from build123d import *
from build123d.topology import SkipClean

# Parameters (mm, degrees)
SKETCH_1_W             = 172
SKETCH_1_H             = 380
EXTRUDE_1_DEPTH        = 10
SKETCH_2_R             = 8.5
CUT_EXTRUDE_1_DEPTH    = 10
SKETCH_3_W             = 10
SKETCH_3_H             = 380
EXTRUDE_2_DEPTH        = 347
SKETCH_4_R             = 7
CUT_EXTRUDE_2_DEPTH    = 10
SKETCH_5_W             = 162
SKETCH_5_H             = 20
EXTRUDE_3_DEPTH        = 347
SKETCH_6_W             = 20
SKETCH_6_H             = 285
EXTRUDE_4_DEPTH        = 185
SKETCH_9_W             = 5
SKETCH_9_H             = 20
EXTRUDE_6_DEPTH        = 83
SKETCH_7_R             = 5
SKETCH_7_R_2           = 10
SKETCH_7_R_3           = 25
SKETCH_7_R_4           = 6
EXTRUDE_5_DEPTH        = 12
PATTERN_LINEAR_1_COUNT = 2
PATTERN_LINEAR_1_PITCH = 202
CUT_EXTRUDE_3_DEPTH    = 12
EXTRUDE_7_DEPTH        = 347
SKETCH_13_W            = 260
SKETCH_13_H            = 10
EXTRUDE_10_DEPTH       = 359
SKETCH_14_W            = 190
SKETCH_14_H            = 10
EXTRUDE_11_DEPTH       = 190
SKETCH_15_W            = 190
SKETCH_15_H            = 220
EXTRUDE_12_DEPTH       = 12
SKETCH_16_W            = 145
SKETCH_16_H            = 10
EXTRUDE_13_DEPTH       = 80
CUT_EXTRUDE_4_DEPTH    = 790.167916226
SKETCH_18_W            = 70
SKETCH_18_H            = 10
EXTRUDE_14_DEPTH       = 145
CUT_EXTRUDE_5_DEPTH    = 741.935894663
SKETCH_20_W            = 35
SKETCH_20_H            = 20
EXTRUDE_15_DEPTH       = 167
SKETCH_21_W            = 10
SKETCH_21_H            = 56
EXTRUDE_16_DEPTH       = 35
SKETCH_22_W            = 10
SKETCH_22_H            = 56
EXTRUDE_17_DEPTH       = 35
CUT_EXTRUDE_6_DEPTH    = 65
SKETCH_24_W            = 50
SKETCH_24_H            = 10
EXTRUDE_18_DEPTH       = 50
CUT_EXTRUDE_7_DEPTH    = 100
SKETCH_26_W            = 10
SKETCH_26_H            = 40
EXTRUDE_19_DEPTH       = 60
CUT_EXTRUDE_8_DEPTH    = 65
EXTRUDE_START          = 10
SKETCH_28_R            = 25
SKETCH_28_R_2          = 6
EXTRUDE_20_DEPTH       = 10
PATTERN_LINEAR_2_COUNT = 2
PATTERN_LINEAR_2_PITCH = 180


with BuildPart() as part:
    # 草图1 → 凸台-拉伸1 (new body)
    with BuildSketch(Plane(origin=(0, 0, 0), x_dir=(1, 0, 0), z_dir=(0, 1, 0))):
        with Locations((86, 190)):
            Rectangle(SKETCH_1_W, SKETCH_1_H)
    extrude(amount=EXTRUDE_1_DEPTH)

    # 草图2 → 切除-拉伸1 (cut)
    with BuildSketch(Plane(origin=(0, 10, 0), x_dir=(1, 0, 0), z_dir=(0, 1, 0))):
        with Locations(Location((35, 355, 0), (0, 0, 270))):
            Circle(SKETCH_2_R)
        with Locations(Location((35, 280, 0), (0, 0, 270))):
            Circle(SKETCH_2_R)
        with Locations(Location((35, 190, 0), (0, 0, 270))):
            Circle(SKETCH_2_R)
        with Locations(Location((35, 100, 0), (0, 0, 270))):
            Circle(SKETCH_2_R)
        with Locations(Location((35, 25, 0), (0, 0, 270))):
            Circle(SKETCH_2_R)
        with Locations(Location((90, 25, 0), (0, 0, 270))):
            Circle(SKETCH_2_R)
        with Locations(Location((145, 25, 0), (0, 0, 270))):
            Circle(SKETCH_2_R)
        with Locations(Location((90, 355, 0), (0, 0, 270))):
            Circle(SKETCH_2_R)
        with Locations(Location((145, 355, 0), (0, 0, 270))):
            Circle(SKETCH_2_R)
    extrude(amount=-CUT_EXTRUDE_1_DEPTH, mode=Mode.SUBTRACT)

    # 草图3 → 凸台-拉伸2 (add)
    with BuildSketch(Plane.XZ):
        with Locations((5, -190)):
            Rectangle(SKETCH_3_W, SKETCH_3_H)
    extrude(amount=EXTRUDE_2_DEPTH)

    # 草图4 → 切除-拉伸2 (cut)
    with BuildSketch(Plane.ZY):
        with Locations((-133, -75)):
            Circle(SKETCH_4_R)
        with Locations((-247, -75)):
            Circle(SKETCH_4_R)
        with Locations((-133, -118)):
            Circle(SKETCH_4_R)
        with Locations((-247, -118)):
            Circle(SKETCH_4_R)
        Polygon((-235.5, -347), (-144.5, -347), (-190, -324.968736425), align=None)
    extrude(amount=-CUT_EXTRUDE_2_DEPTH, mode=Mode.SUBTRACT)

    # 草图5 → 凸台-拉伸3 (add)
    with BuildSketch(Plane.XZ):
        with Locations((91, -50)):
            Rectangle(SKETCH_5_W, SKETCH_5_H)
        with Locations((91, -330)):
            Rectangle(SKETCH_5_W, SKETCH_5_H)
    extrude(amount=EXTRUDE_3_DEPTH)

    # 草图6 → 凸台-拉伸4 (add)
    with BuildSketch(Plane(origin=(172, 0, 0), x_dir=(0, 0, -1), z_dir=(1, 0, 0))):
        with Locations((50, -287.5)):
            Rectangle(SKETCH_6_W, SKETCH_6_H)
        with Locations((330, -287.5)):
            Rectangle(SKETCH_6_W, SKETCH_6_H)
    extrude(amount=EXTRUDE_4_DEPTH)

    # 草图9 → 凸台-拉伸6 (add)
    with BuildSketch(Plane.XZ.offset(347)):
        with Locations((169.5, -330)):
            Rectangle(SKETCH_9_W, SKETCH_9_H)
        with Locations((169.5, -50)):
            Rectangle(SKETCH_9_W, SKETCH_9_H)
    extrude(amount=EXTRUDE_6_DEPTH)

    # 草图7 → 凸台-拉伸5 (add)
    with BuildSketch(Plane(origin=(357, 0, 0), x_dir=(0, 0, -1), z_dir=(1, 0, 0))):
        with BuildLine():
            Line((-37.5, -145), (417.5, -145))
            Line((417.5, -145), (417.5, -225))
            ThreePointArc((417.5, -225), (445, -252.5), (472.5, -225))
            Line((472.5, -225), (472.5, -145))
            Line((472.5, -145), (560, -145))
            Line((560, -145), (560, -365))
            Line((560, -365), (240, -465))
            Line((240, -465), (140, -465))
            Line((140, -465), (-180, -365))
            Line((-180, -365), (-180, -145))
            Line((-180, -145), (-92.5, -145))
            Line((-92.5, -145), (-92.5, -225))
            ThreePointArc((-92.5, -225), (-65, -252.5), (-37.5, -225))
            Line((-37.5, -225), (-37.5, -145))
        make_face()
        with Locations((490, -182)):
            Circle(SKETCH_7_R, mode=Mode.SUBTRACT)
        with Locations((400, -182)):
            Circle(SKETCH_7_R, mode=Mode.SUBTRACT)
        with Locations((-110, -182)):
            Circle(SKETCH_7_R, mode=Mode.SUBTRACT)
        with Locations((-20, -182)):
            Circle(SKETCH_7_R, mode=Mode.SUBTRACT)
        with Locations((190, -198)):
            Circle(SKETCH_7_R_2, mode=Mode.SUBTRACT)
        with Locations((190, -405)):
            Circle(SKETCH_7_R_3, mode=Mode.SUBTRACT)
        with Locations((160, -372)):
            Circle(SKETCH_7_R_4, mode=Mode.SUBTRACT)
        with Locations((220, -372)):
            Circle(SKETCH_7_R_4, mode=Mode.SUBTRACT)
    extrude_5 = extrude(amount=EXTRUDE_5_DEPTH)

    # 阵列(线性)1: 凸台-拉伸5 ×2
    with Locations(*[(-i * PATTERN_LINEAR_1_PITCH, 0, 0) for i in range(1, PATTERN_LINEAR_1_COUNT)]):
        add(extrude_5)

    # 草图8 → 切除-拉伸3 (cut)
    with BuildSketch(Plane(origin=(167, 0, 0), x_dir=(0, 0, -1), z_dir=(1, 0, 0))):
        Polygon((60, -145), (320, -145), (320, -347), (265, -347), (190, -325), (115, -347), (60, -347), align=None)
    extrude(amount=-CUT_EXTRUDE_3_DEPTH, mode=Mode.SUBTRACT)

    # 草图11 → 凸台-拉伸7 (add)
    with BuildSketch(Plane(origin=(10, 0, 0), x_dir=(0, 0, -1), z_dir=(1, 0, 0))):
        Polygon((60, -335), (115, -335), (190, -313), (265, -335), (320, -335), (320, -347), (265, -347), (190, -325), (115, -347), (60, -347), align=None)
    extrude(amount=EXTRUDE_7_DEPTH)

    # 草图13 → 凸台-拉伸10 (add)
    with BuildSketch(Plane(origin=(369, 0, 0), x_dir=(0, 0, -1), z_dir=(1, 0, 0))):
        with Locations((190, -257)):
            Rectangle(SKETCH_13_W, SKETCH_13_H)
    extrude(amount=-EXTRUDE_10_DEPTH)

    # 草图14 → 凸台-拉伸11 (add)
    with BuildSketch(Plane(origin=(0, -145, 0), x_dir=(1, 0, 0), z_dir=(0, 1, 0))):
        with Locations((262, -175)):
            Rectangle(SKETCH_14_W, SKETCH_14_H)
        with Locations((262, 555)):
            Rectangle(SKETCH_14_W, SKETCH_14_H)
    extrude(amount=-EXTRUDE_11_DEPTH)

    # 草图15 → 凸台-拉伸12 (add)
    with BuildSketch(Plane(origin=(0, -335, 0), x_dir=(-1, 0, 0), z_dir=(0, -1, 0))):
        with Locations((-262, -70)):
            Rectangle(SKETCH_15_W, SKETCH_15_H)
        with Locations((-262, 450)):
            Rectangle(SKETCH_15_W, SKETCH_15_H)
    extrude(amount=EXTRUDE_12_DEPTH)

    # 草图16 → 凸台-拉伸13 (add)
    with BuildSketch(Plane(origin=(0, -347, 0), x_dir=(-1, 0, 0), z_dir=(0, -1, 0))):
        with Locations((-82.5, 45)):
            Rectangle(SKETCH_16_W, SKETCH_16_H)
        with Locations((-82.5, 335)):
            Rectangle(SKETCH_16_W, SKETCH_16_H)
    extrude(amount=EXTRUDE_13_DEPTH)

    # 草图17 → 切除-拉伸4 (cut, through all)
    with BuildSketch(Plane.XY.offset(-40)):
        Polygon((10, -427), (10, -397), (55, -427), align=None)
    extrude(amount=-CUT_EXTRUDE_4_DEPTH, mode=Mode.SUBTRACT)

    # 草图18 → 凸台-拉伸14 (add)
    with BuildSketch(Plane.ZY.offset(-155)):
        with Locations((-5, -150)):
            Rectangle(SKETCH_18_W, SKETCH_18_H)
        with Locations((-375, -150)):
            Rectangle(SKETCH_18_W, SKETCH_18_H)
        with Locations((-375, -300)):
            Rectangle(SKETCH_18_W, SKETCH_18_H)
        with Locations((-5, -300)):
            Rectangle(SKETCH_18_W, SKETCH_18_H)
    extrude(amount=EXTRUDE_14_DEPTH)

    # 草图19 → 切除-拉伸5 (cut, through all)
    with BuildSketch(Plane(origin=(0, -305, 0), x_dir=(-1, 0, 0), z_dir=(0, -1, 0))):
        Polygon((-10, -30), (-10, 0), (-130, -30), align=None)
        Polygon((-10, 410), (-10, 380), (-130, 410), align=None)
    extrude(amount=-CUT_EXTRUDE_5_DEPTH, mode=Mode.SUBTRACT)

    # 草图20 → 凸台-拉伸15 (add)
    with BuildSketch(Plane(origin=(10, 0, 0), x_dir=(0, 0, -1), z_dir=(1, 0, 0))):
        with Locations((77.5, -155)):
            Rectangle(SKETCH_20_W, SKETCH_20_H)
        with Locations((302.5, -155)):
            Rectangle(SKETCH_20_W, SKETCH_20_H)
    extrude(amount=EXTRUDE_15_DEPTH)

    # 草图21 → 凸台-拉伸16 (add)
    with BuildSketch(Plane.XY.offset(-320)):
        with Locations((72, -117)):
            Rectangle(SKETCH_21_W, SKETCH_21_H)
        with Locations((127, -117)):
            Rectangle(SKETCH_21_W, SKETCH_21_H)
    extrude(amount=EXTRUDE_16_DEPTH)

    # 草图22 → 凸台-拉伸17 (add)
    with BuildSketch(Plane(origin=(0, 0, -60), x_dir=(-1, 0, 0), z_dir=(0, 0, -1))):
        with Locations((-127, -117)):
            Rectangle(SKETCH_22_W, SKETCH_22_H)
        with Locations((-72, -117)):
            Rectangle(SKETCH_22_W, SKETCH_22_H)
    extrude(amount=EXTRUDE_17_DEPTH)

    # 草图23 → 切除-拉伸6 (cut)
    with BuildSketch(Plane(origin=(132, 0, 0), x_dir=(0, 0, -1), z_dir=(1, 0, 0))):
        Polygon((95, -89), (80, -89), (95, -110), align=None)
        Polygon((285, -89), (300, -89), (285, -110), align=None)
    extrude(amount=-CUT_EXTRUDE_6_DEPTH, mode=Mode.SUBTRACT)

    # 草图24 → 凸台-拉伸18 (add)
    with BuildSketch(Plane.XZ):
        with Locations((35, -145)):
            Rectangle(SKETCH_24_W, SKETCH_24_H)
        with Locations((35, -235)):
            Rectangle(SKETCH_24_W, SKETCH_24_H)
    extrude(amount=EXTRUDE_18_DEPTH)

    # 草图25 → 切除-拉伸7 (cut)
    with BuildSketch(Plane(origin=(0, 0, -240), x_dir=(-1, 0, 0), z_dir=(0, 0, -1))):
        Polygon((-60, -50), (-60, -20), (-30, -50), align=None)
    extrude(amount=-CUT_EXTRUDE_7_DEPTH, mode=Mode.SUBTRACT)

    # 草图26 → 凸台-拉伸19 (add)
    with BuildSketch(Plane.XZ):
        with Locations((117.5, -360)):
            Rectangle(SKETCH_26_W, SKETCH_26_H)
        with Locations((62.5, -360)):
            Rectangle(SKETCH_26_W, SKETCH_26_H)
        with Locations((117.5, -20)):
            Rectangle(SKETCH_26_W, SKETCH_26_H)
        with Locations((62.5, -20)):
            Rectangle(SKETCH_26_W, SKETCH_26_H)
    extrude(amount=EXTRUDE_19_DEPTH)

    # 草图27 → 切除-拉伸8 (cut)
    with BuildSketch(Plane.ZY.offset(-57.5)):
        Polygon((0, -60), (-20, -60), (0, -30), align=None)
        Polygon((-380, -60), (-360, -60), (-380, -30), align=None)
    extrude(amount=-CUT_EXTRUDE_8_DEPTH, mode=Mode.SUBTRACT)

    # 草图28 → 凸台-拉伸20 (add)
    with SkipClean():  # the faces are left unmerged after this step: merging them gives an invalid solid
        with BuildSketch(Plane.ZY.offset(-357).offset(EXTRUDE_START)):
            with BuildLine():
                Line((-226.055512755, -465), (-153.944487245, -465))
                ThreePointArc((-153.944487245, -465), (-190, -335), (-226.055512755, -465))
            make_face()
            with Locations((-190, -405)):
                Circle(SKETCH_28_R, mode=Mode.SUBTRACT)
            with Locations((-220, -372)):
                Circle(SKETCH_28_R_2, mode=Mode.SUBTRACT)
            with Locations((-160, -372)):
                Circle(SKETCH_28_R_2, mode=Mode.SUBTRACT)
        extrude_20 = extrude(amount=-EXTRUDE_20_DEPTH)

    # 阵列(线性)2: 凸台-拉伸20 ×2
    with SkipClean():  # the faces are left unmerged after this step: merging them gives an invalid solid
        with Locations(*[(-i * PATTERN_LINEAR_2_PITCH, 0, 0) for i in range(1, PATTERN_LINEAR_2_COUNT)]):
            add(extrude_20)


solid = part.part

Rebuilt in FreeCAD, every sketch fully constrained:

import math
import FreeCAD as App
import Part
import Sketcher

V = App.Vector
Q = App.Units.Quantity


def add_polygon(sketch, points):
    """Adds a closed chain of lines whose ends are joined by coincident constraints."""
    first, n = sketch.GeometryCount, len(points)
    for a, b in zip(points, points[1:] + points[:1]):
        sketch.addGeometry(Part.LineSegment(App.Vector(*a, 0), App.Vector(*b, 0)), False)
    for i in range(n):
        sketch.addConstraint(Sketcher.Constraint("Coincident", first + i, 2, first + (i + 1) % n, 1))

doc = App.newDocument("Part")
body = doc.addObject("PartDesign::Body", "Body")

# Sketch on XZ plane
sketch1 = doc.addObject("Sketcher::SketchObject", "Sketch")
body.addObject(sketch1)
sketch1.AttachmentSupport = (doc.XZ_Plane, [""])
sketch1.MapMode = "FlatFace"
add_polygon(sketch1, [(0, -380), (0, 0), (172, 0), (172, -380)])  # lines 0-3
sketch1.addConstraint([
    Sketcher.Constraint("Vertical", 0),
    Sketcher.Constraint("Horizontal", 1),
    Sketcher.Constraint("Vertical", 2),
    Sketcher.Constraint("Horizontal", 3),
    Sketcher.Constraint("Coincident", 0, 2, -1, 1),
    Sketcher.Constraint("DistanceX", 1, 1, 1, 2, Q("172 mm")),
    Sketcher.Constraint("DistanceY", 0, 1, 0, 2, Q("380 mm")),
])
pad1 = doc.addObject("PartDesign::Pad", "Pad")
body.addObject(pad1)
pad1.Profile = sketch1
pad1.Length = 10
pad1.Reversed = True

# Sketch on XZ plane
sketch2 = doc.addObject("Sketcher::SketchObject", "Sketch001")
body.addObject(sketch2)
sketch2.AttachmentSupport = (doc.XZ_Plane, [""])
sketch2.MapMode = "FlatFace"
sketch2.AttachmentOffset = App.Placement(V(0, 0, -10), App.Rotation())
sketch2.addGeometry([
    Part.Circle(V(35, -355, 0), V(0, 0, 1), 8.5),  # 0
    Part.Circle(V(35, -280, 0), V(0, 0, 1), 8.5),  # 1
    Part.Circle(V(35, -190, 0), V(0, 0, 1), 8.5),  # 2
    Part.Circle(V(35, -100, 0), V(0, 0, 1), 8.5),  # 3
    Part.Circle(V(35, -25, 0), V(0, 0, 1), 8.5),  # 4
    Part.Circle(V(90, -25, 0), V(0, 0, 1), 8.5),  # 5
    Part.Circle(V(145, -25, 0), V(0, 0, 1), 8.5),  # 6
    Part.Circle(V(90, -355, 0), V(0, 0, 1), 8.5),  # 7
    Part.Circle(V(145, -355, 0), V(0, 0, 1), 8.5),  # 8
], False)
sketch2.addConstraint([
    Sketcher.Constraint("Equal", 0, 1),
    Sketcher.Constraint("Equal", 1, 2),
    Sketcher.Constraint("Equal", 2, 3),
    Sketcher.Constraint("Equal", 3, 4),
    Sketcher.Constraint("Equal", 4, 5),
    Sketcher.Constraint("Equal", 5, 6),
    Sketcher.Constraint("Equal", 6, 7),
    Sketcher.Constraint("Equal", 7, 8),
    Sketcher.Constraint("Horizontal", 4, 3, 5, 3),
    Sketcher.Constraint("Horizontal", 5, 3, 6, 3),
    Sketcher.Constraint("Horizontal", 0, 3, 7, 3),
    Sketcher.Constraint("Horizontal", 7, 3, 8, 3),
    Sketcher.Constraint("Vertical", 0, 3, 1, 3),
    Sketcher.Constraint("Vertical", 1, 3, 2, 3),
    Sketcher.Constraint("Vertical", 2, 3, 3, 3),
    Sketcher.Constraint("Vertical", 3, 3, 4, 3),
    Sketcher.Constraint("Vertical", 5, 3, 7, 3),
    Sketcher.Constraint("Vertical", 6, 3, 8, 3),
    Sketcher.Constraint("Diameter", 0, Q("17 mm")),
    Sketcher.Constraint("DistanceX", -1, 1, 0, 3, Q("35 mm")),
    Sketcher.Constraint("DistanceY", 0, 3, -1, 1, Q("355 mm")),
    Sketcher.Constraint("DistanceY", 1, 3, -1, 1, Q("280 mm")),
    Sketcher.Constraint("DistanceY", 2, 3, -1, 1, Q("190 mm")),
    Sketcher.Constraint("DistanceY", 3, 3, -1, 1, Q("100 mm")),
    Sketcher.Constraint("DistanceY", 4, 3, -1, 1, Q("25 mm")),
    Sketcher.Constraint("DistanceX", -1, 1, 5, 3, Q("90 mm")),
    Sketcher.Constraint("DistanceX", -1, 1, 6, 3, Q("145 mm")),
])
pocket1 = doc.addObject("PartDesign::Pocket", "Pocket")
body.addObject(pocket1)
pocket1.Profile = sketch2
pocket1.Length = 10
pocket1.Reversed = True

# Sketch on XZ plane
sketch3 = doc.addObject("Sketcher::SketchObject", "Sketch002")
body.addObject(sketch3)
sketch3.AttachmentSupport = (doc.XZ_Plane, [""])
sketch3.MapMode = "FlatFace"
add_polygon(sketch3, [(0, 0), (0, -380), (10, -380), (10, 0)])  # lines 0-3
sketch3.addConstraint([
    Sketcher.Constraint("Vertical", 0),
    Sketcher.Constraint("Horizontal", 1),
    Sketcher.Constraint("Vertical", 2),
    Sketcher.Constraint("Horizontal", 3),
    Sketcher.Constraint("Coincident", 3, 2, -1, 1),
    Sketcher.Constraint("DistanceX", 1, 1, 1, 2, Q("10 mm")),
    Sketcher.Constraint("DistanceY", 0, 2, 0, 1, Q("380 mm")),
])
pad2 = doc.addObject("PartDesign::Pad", "Pad001")
body.addObject(pad2)
pad2.Profile = sketch3
pad2.Length = 347

# Sketch on YZ plane
sketch4 = doc.addObject("Sketcher::SketchObject", "Sketch003")
body.addObject(sketch4)
sketch4.AttachmentSupport = (doc.YZ_Plane, [""])
sketch4.MapMode = "FlatFace"
sketch4.addGeometry(Part.Circle(V(-75, -133, 0), V(0, 0, 1), 7), False)  # 0
sketch4.addGeometry(Part.Circle(V(-75, -247, 0), V(0, 0, 1), 7), False)  # 1
sketch4.addGeometry(Part.Circle(V(-118, -133, 0), V(0, 0, 1), 7), False)  # 2
sketch4.addGeometry(Part.Circle(V(-118, -247, 0), V(0, 0, 1), 7), False)  # 3
add_polygon(sketch4, [(-347, -235.5), (-347, -144.5), (-324.968736, -190)])  # lines 4-6
sketch4.addConstraint([
    Sketcher.Constraint("Vertical", 4),
    Sketcher.Constraint("Equal", 0, 1),
    Sketcher.Constraint("Equal", 1, 2),
    Sketcher.Constraint("Equal", 2, 3),
    Sketcher.Constraint("Horizontal", 0, 3, 2, 3),
    Sketcher.Constraint("Horizontal", 1, 3, 3, 3),
    Sketcher.Constraint("Vertical", 0, 3, 1, 3),
    Sketcher.Constraint("Vertical", 2, 3, 3, 3),
    Sketcher.Constraint("Equal", 5, 6),
    Sketcher.Constraint("Diameter", 0, Q("14 mm")),
    Sketcher.Constraint("DistanceY", 4, 1, 4, 2, Q("91 mm")),
    Sketcher.Constraint("DistanceX", 0, 3, -1, 1, Q("75 mm")),
    Sketcher.Constraint("DistanceY", 0, 3, -1, 1, Q("133 mm")),
    Sketcher.Constraint("DistanceY", 1, 3, -1, 1, Q("247 mm")),
    Sketcher.Constraint("DistanceX", 2, 3, -1, 1, Q("118 mm")),
    Sketcher.Constraint("DistanceX", 4, 2, -1, 1, Q("347 mm")),
    Sketcher.Constraint("DistanceY", 5, 2, -1, 1, Q("190 mm")),
    Sketcher.Constraint("Distance", 5, Q("50.553205 mm")),
])
pocket2 = doc.addObject("PartDesign::Pocket", "Pocket001")
body.addObject(pocket2)
pocket2.Profile = sketch4
pocket2.Length = 10
pocket2.Reversed = True

# Sketch on XZ plane
sketch5 = doc.addObject("Sketcher::SketchObject", "Sketch004")
body.addObject(sketch5)
sketch5.AttachmentSupport = (doc.XZ_Plane, [""])
sketch5.MapMode = "FlatFace"
add_polygon(sketch5, [(10, -40), (10, -60), (172, -60), (172, -40)])  # lines 0-3
add_polygon(sketch5, [(10, -320), (10, -340), (172, -340), (172, -320)])  # lines 4-7
sketch5.addConstraint([
    Sketcher.Constraint("Vertical", 0),
    Sketcher.Constraint("Horizontal", 1),
    Sketcher.Constraint("Vertical", 2),
    Sketcher.Constraint("Horizontal", 3),
    Sketcher.Constraint("Vertical", 4),
    Sketcher.Constraint("Horizontal", 5),
    Sketcher.Constraint("Vertical", 6),
    Sketcher.Constraint("Horizontal", 7),
    Sketcher.Constraint("Vertical", 3, 2, 4, 2),
    Sketcher.Constraint("Vertical", 2, 2, 5, 2),
    Sketcher.Constraint("Equal", 2, 4),
    Sketcher.Constraint("DistanceX", 1, 1, 1, 2, Q("162 mm")),
    Sketcher.Constraint("DistanceY", 0, 2, 0, 1, Q("20 mm")),
    Sketcher.Constraint("DistanceX", -1, 1, 0, 2, Q("10 mm")),
    Sketcher.Constraint("DistanceY", 0, 2, -1, 1, Q("60 mm")),
    Sketcher.Constraint("DistanceY", 4, 2, -1, 1, Q("340 mm")),
])
pad3 = doc.addObject("PartDesign::Pad", "Pad002")
body.addObject(pad3)
pad3.Profile = sketch5
pad3.Length = 347

# Sketch on YZ plane
sketch6 = doc.addObject("Sketcher::SketchObject", "Sketch005")
body.addObject(sketch6)
sketch6.AttachmentSupport = (doc.YZ_Plane, [""])
sketch6.MapMode = "FlatFace"
sketch6.AttachmentOffset = App.Placement(V(0, 0, 172), App.Rotation())
add_polygon(sketch6, [(-145, -40), (-430, -40), (-430, -60), (-145, -60)])  # lines 0-3
add_polygon(sketch6, [(-145, -320), (-430, -320), (-430, -340), (-145, -340)])  # lines 4-7
sketch6.addConstraint([
    Sketcher.Constraint("Horizontal", 0),
    Sketcher.Constraint("Vertical", 1),
    Sketcher.Constraint("Horizontal", 2),
    Sketcher.Constraint("Vertical", 3),
    Sketcher.Constraint("Horizontal", 4),
    Sketcher.Constraint("Vertical", 5),
    Sketcher.Constraint("Horizontal", 6),
    Sketcher.Constraint("Vertical", 7),
    Sketcher.Constraint("Vertical", 1, 2, 4, 2),
    Sketcher.Constraint("Vertical", 3, 2, 6, 2),
    Sketcher.Constraint("Equal", 3, 5),
    Sketcher.Constraint("DistanceX", 0, 2, 0, 1, Q("285 mm")),
    Sketcher.Constraint("DistanceY", 1, 2, 1, 1, Q("20 mm")),
    Sketcher.Constraint("DistanceX", 0, 2, -1, 1, Q("430 mm")),
    Sketcher.Constraint("DistanceY", 0, 2, -1, 1, Q("40 mm")),
    Sketcher.Constraint("DistanceY", 4, 2, -1, 1, Q("320 mm")),
])
pad4 = doc.addObject("PartDesign::Pad", "Pad003")
body.addObject(pad4)
pad4.Profile = sketch6
pad4.Length = 185

# Sketch on XZ plane
sketch7 = doc.addObject("Sketcher::SketchObject", "Sketch006")
body.addObject(sketch7)
sketch7.AttachmentSupport = (doc.XZ_Plane, [""])
sketch7.MapMode = "FlatFace"
sketch7.AttachmentOffset = App.Placement(V(0, 0, 347), App.Rotation())
add_polygon(sketch7, [(167, -320), (167, -340), (172, -340), (172, -320)])  # lines 0-3
add_polygon(sketch7, [(167, -40), (167, -60), (172, -60), (172, -40)])  # lines 4-7
sketch7.addConstraint([
    Sketcher.Constraint("Vertical", 0),
    Sketcher.Constraint("Horizontal", 1),
    Sketcher.Constraint("Vertical", 2),
    Sketcher.Constraint("Horizontal", 3),
    Sketcher.Constraint("Vertical", 4),
    Sketcher.Constraint("Horizontal", 5),
    Sketcher.Constraint("Vertical", 6),
    Sketcher.Constraint("Horizontal", 7),
    Sketcher.Constraint("Vertical", 3, 2, 4, 2),
    Sketcher.Constraint("Vertical", 2, 2, 5, 2),
    Sketcher.Constraint("Equal", 2, 4),
    Sketcher.Constraint("DistanceX", 1, 1, 1, 2, Q("5 mm")),
    Sketcher.Constraint("DistanceY", 0, 2, 0, 1, Q("20 mm")),
    Sketcher.Constraint("DistanceX", -1, 1, 0, 2, Q("167 mm")),
    Sketcher.Constraint("DistanceY", 0, 2, -1, 1, Q("340 mm")),
    Sketcher.Constraint("DistanceY", 4, 2, -1, 1, Q("60 mm")),
])
pad5 = doc.addObject("PartDesign::Pad", "Pad004")
body.addObject(pad5)
pad5.Profile = sketch7
pad5.Length = 83

# Sketch on YZ plane
sketch8 = doc.addObject("Sketcher::SketchObject", "Sketch007")
body.addObject(sketch8)
sketch8.AttachmentSupport = (doc.YZ_Plane, [""])
sketch8.MapMode = "FlatFace"
sketch8.AttachmentOffset = App.Placement(V(0, 0, 357), App.Rotation())
sketch8.addGeometry([
    Part.LineSegment(V(-145, -417.5, 0), V(-145, 37.5, 0)),  # 0
    Part.LineSegment(V(-145, 37.5, 0), V(-225, 37.5, 0)),  # 1
    Part.ArcOfCircle(Part.Circle(V(-225, 65, 0), V(0, 0, 1), 27.5), math.radians(90), math.radians(270)),  # 2
    Part.LineSegment(V(-225, 92.5, 0), V(-145, 92.5, 0)),  # 3
    Part.LineSegment(V(-145, 92.5, 0), V(-145, 180, 0)),  # 4
    Part.LineSegment(V(-145, 180, 0), V(-365, 180, 0)),  # 5
    Part.LineSegment(V(-365, 180, 0), V(-465, -140, 0)),  # 6
    Part.LineSegment(V(-465, -140, 0), V(-465, -240, 0)),  # 7
    Part.LineSegment(V(-465, -240, 0), V(-365, -560, 0)),  # 8
    Part.LineSegment(V(-365, -560, 0), V(-145, -560, 0)),  # 9
    Part.LineSegment(V(-145, -560, 0), V(-145, -472.5, 0)),  # 10
    Part.LineSegment(V(-145, -472.5, 0), V(-225, -472.5, 0)),  # 11
    Part.ArcOfCircle(Part.Circle(V(-225, -445, 0), V(0, 0, 1), 27.5), math.radians(90), math.radians(270)),  # 12
    Part.LineSegment(V(-225, -417.5, 0), V(-145, -417.5, 0)),  # 13
    Part.Circle(V(-372, -220, 0), V(0, 0, 1), 6),  # 14
    Part.Circle(V(-405, -190, 0), V(0, 0, 1), 25),  # 15
    Part.Circle(V(-372, -160, 0), V(0, 0, 1), 6),  # 16
    Part.Circle(V(-182, -490, 0), V(0, 0, 1), 5),  # 17
    Part.Circle(V(-182, -400, 0), V(0, 0, 1), 5),  # 18
    Part.Circle(V(-198, -190, 0), V(0, 0, 1), 10),  # 19
    Part.Circle(V(-182, 20, 0), V(0, 0, 1), 5),  # 20
    Part.Circle(V(-182, 110, 0), V(0, 0, 1), 5),  # 21
], False)
sketch8.addConstraint([
    Sketcher.Constraint("Coincident", 0, 2, 1, 1),
    Sketcher.Constraint("Tangent", 1, 2, 2, 2),
    Sketcher.Constraint("Tangent", 2, 1, 3, 1),
    Sketcher.Constraint("Coincident", 3, 2, 4, 1),
    Sketcher.Constraint("Coincident", 4, 2, 5, 1),
    Sketcher.Constraint("Coincident", 5, 2, 6, 1),
    Sketcher.Constraint("Coincident", 6, 2, 7, 1),
    Sketcher.Constraint("Coincident", 7, 2, 8, 1),
    Sketcher.Constraint("Coincident", 8, 2, 9, 1),
    Sketcher.Constraint("Coincident", 9, 2, 10, 1),
    Sketcher.Constraint("Coincident", 10, 2, 11, 1),
    Sketcher.Constraint("Tangent", 11, 2, 12, 2),
    Sketcher.Constraint("Tangent", 12, 1, 13, 1),
    Sketcher.Constraint("Coincident", 13, 2, 0, 1),
    Sketcher.Constraint("Vertical", 0),
    Sketcher.Constraint("Horizontal", 1),
    Sketcher.Constraint("Horizontal", 3),
    Sketcher.Constraint("Vertical", 4),
    Sketcher.Constraint("Horizontal", 5),
    Sketcher.Constraint("Vertical", 7),
    Sketcher.Constraint("Horizontal", 9),
    Sketcher.Constraint("Vertical", 10),
    Sketcher.Constraint("Horizontal", 11),
    Sketcher.Constraint("Horizontal", 13),
    Sketcher.Constraint("Equal", 2, 12),
    Sketcher.Constraint("Equal", 14, 16),
    Sketcher.Constraint("Equal", 17, 18),
    Sketcher.Constraint("Equal", 18, 20),
    Sketcher.Constraint("Equal", 20, 21),
    Sketcher.Constraint("Horizontal", 15, 3, 19, 3),
    Sketcher.Constraint("Vertical", 2, 3, 12, 3),
    Sketcher.Constraint("Vertical", 14, 3, 16, 3),
    Sketcher.Constraint("Vertical", 17, 3, 18, 3),
    Sketcher.Constraint("Vertical", 18, 3, 20, 3),
    Sketcher.Constraint("Vertical", 20, 3, 21, 3),
    Sketcher.Constraint("Vertical", 0, 2, 3, 2),
    Sketcher.Constraint("Vertical", 5, 2, 8, 2),
    Sketcher.Constraint("Vertical", 4, 2, 9, 2),
    Sketcher.Constraint("Equal", 4, 10),
    Sketcher.Constraint("Equal", 6, 8),
    Sketcher.Constraint("Diameter", 14, Q("12 mm")),
    Sketcher.Constraint("Diameter", 15, Q("50 mm")),
    Sketcher.Constraint("Diameter", 17, Q("10 mm")),
    Sketcher.Constraint("Diameter", 19, Q("20 mm")),
    Sketcher.Constraint("Radius", 2, Q("27.5 mm")),
    Sketcher.Constraint("DistanceX", 1, 2, 1, 1, Q("80 mm")),
    Sketcher.Constraint("DistanceX", 5, 2, 5, 1, Q("220 mm")),
    Sketcher.Constraint("DistanceY", 0, 1, 0, 2, Q("455 mm")),
    Sketcher.Constraint("DistanceY", 7, 2, 7, 1, Q("100 mm")),
    Sketcher.Constraint("DistanceY", 4, 1, 4, 2, Q("87.5 mm")),
    Sketcher.Constraint("DistanceX", 2, 3, -1, 1, Q("225 mm")),
    Sketcher.Constraint("DistanceY", -1, 1, 2, 3, Q("65 mm")),
    Sketcher.Constraint("DistanceX", 14, 3, -1, 1, Q("372 mm")),
    Sketcher.Constraint("DistanceY", 14, 3, -1, 1, Q("220 mm")),
    Sketcher.Constraint("DistanceX", 15, 3, -1, 1, Q("405 mm")),
    Sketcher.Constraint("DistanceY", 15, 3, -1, 1, Q("190 mm")),
    Sketcher.Constraint("DistanceY", 16, 3, -1, 1, Q("160 mm")),
    Sketcher.Constraint("DistanceX", 17, 3, -1, 1, Q("182 mm")),
    Sketcher.Constraint("DistanceY", 17, 3, -1, 1, Q("490 mm")),
    Sketcher.Constraint("DistanceY", 18, 3, -1, 1, Q("400 mm")),
    Sketcher.Constraint("DistanceX", 19, 3, -1, 1, Q("198 mm")),
    Sketcher.Constraint("DistanceY", -1, 1, 20, 3, Q("20 mm")),
    Sketcher.Constraint("DistanceY", -1, 1, 21, 3, Q("110 mm")),
    Sketcher.Constraint("DistanceX", 6, 2, -1, 1, Q("465 mm")),
])
pad6 = doc.addObject("PartDesign::Pad", "Pad005")
body.addObject(pad6)
pad6.Profile = sketch8
pad6.Length = 12
doc.recompute()

linearpattern = doc.addObject("PartDesign::LinearPattern", "LinearPattern")
body.addObject(linearpattern)
linearpattern.Originals = [pad6]
linearpattern.Direction = (doc.X_Axis, [""])
linearpattern.Mode = "offset"
linearpattern.Offset = 202
linearpattern.Occurrences = 2
linearpattern.Reversed = True
body.Tip = linearpattern

# Sketch on YZ plane
sketch9 = doc.addObject("Sketcher::SketchObject", "Sketch008")
body.addObject(sketch9)
sketch9.AttachmentSupport = (doc.YZ_Plane, [""])
sketch9.MapMode = "FlatFace"
sketch9.AttachmentOffset = App.Placement(V(0, 0, 167), App.Rotation())
add_polygon(sketch9, [(-145, -320), (-145, -60), (-347, -60), (-347, -115), (-325, -190), (-347, -265), (-347, -320)])  # lines 0-6
sketch9.addConstraint([
    Sketcher.Constraint("Vertical", 0),
    Sketcher.Constraint("Horizontal", 1),
    Sketcher.Constraint("Vertical", 2),
    Sketcher.Constraint("Vertical", 5),
    Sketcher.Constraint("Horizontal", 6),
    Sketcher.Constraint("Vertical", 2, 2, 4, 2),
    Sketcher.Constraint("Equal", 2, 5),
    Sketcher.Constraint("Equal", 3, 4),
    Sketcher.Constraint("DistanceX", 1, 2, 1, 1, Q("202 mm")),
    Sketcher.Constraint("DistanceY", 0, 1, 0, 2, Q("260 mm")),
    Sketcher.Constraint("DistanceY", 2, 2, 2, 1, Q("55 mm")),
    Sketcher.Constraint("DistanceX", 0, 2, -1, 1, Q("145 mm")),
    Sketcher.Constraint("DistanceY", 0, 2, -1, 1, Q("60 mm")),
    Sketcher.Constraint("DistanceX", 3, 2, -1, 1, Q("325 mm")),
])
pocket3 = doc.addObject("PartDesign::Pocket", "Pocket002")
body.addObject(pocket3)
pocket3.Profile = sketch9
pocket3.Length = 12

# Sketch on YZ plane
sketch10 = doc.addObject("Sketcher::SketchObject", "Sketch009")
body.addObject(sketch10)
sketch10.AttachmentSupport = (doc.YZ_Plane, [""])
sketch10.MapMode = "FlatFace"
sketch10.AttachmentOffset = App.Placement(V(0, 0, 10), App.Rotation())
add_polygon(sketch10, [(-335, -115), (-335, -60), (-347, -60), (-347, -115), (-325, -190), (-347, -265), (-347, -320), (-335, -320), (-335, -265), (-313, -190)])  # lines 0-9
sketch10.addConstraint([
    Sketcher.Constraint("Vertical", 0),
    Sketcher.Constraint("Horizontal", 1),
    Sketcher.Constraint("Vertical", 2),
    Sketcher.Constraint("Vertical", 5),
    Sketcher.Constraint("Horizontal", 6),
    Sketcher.Constraint("Vertical", 7),
    Sketcher.Constraint("Parallel", 4, 8),
    Sketcher.Constraint("Parallel", 3, 9),
    Sketcher.Constraint("Horizontal", 4, 2, 7, 2),
    Sketcher.Constraint("Horizontal", 3, 2, 8, 2),
    Sketcher.Constraint("Horizontal", 2, 2, 9, 2),
    Sketcher.Constraint("Vertical", 2, 2, 4, 2),
    Sketcher.Constraint("Equal", 2, 5),
    Sketcher.Constraint("Equal", 3, 4),
    Sketcher.Constraint("DistanceX", 1, 2, 1, 1, Q("12 mm")),
    Sketcher.Constraint("DistanceY", 0, 1, 0, 2, Q("55 mm")),
    Sketcher.Constraint("DistanceX", 0, 2, -1, 1, Q("335 mm")),
    Sketcher.Constraint("DistanceY", 0, 2, -1, 1, Q("60 mm")),
    Sketcher.Constraint("DistanceX", 3, 2, -1, 1, Q("325 mm")),
    Sketcher.Constraint("DistanceY", 3, 2, -1, 1, Q("190 mm")),
])
pad7 = doc.addObject("PartDesign::Pad", "Pad006")
body.addObject(pad7)
pad7.Profile = sketch10
pad7.Length = 347

# Sketch on YZ plane
sketch11 = doc.addObject("Sketcher::SketchObject", "Sketch010")
body.addObject(sketch11)
sketch11.AttachmentSupport = (doc.YZ_Plane, [""])
sketch11.MapMode = "FlatFace"
sketch11.AttachmentOffset = App.Placement(V(0, 0, 369), App.Rotation())
add_polygon(sketch11, [(-252, -60), (-262, -60), (-262, -320), (-252, -320)])  # lines 0-3
sketch11.addConstraint([
    Sketcher.Constraint("Horizontal", 0),
    Sketcher.Constraint("Vertical", 1),
    Sketcher.Constraint("Horizontal", 2),
    Sketcher.Constraint("Vertical", 3),
    Sketcher.Constraint("DistanceX", 0, 2, 0, 1, Q("10 mm")),
    Sketcher.Constraint("DistanceY", 1, 2, 1, 1, Q("260 mm")),
    Sketcher.Constraint("DistanceX", 0, 2, -1, 1, Q("262 mm")),
    Sketcher.Constraint("DistanceY", 0, 2, -1, 1, Q("60 mm")),
])
pad8 = doc.addObject("PartDesign::Pad", "Pad007")
body.addObject(pad8)
pad8.Profile = sketch11
pad8.Length = 359
pad8.Reversed = True

# Sketch on XZ plane
sketch12 = doc.addObject("Sketcher::SketchObject", "Sketch011")
body.addObject(sketch12)
sketch12.AttachmentSupport = (doc.XZ_Plane, [""])
sketch12.MapMode = "FlatFace"
sketch12.AttachmentOffset = App.Placement(V(0, 0, 145), App.Rotation())
add_polygon(sketch12, [(167, 170), (167, 180), (357, 180), (357, 170)])  # lines 0-3
add_polygon(sketch12, [(167, -560), (167, -550), (357, -550), (357, -560)])  # lines 4-7
sketch12.addConstraint([
    Sketcher.Constraint("Vertical", 0),
    Sketcher.Constraint("Horizontal", 1),
    Sketcher.Constraint("Vertical", 2),
    Sketcher.Constraint("Horizontal", 3),
    Sketcher.Constraint("Vertical", 4),
    Sketcher.Constraint("Horizontal", 5),
    Sketcher.Constraint("Vertical", 6),
    Sketcher.Constraint("Horizontal", 7),
    Sketcher.Constraint("Vertical", 3, 2, 4, 2),
    Sketcher.Constraint("Vertical", 2, 2, 5, 2),
    Sketcher.Constraint("Equal", 2, 4),
    Sketcher.Constraint("DistanceX", 1, 1, 1, 2, Q("190 mm")),
    Sketcher.Constraint("DistanceY", 0, 1, 0, 2, Q("10 mm")),
    Sketcher.Constraint("DistanceX", -1, 1, 0, 2, Q("167 mm")),
    Sketcher.Constraint("DistanceY", -1, 1, 0, 2, Q("180 mm")),
    Sketcher.Constraint("DistanceY", 4, 2, -1, 1, Q("550 mm")),
])
pad9 = doc.addObject("PartDesign::Pad", "Pad008")
body.addObject(pad9)
pad9.Profile = sketch12
pad9.Length = 190

# Sketch on XZ plane
sketch13 = doc.addObject("Sketcher::SketchObject", "Sketch012")
body.addObject(sketch13)
sketch13.AttachmentSupport = (doc.XZ_Plane, [""])
sketch13.MapMode = "FlatFace"
sketch13.AttachmentOffset = App.Placement(V(0, 0, 335), App.Rotation())
add_polygon(sketch13, [(357, -40), (357, 180), (167, 180), (167, -40)])  # lines 0-3
add_polygon(sketch13, [(357, -560), (357, -340), (167, -340), (167, -560)])  # lines 4-7
sketch13.addConstraint([
    Sketcher.Constraint("Vertical", 0),
    Sketcher.Constraint("Horizontal", 1),
    Sketcher.Constraint("Vertical", 2),
    Sketcher.Constraint("Horizontal", 3),
    Sketcher.Constraint("Vertical", 4),
    Sketcher.Constraint("Horizontal", 5),
    Sketcher.Constraint("Vertical", 6),
    Sketcher.Constraint("Horizontal", 7),
    Sketcher.Constraint("Vertical", 3, 2, 4, 2),
    Sketcher.Constraint("Vertical", 2, 2, 5, 2),
    Sketcher.Constraint("Equal", 2, 4),
    Sketcher.Constraint("DistanceX", 1, 2, 1, 1, Q("190 mm")),
    Sketcher.Constraint("DistanceY", 0, 1, 0, 2, Q("220 mm")),
    Sketcher.Constraint("DistanceX", -1, 1, 0, 2, Q("357 mm")),
    Sketcher.Constraint("DistanceY", -1, 1, 0, 2, Q("180 mm")),
    Sketcher.Constraint("DistanceY", 4, 2, -1, 1, Q("340 mm")),
])
pad10 = doc.addObject("PartDesign::Pad", "Pad009")
body.addObject(pad10)
pad10.Profile = sketch13
pad10.Length = 12

# Sketch on XZ plane
sketch14 = doc.addObject("Sketcher::SketchObject", "Sketch013")
body.addObject(sketch14)
sketch14.AttachmentSupport = (doc.XZ_Plane, [""])
sketch14.MapMode = "FlatFace"
sketch14.AttachmentOffset = App.Placement(V(0, 0, 347), App.Rotation())
add_polygon(sketch14, [(155, -50), (155, -40), (10, -40), (10, -50)])  # lines 0-3
add_polygon(sketch14, [(155, -340), (155, -330), (10, -330), (10, -340)])  # lines 4-7
sketch14.addConstraint([
    Sketcher.Constraint("Vertical", 0),
    Sketcher.Constraint("Horizontal", 1),
    Sketcher.Constraint("Vertical", 2),
    Sketcher.Constraint("Horizontal", 3),
    Sketcher.Constraint("Vertical", 4),
    Sketcher.Constraint("Horizontal", 5),
    Sketcher.Constraint("Vertical", 6),
    Sketcher.Constraint("Horizontal", 7),
    Sketcher.Constraint("Vertical", 3, 2, 4, 2),
    Sketcher.Constraint("Vertical", 2, 2, 5, 2),
    Sketcher.Constraint("Equal", 2, 4),
    Sketcher.Constraint("DistanceX", 1, 2, 1, 1, Q("145 mm")),
    Sketcher.Constraint("DistanceY", 0, 1, 0, 2, Q("10 mm")),
    Sketcher.Constraint("DistanceX", -1, 1, 0, 2, Q("155 mm")),
    Sketcher.Constraint("DistanceY", 0, 2, -1, 1, Q("40 mm")),
    Sketcher.Constraint("DistanceY", 4, 2, -1, 1, Q("330 mm")),
])
pad11 = doc.addObject("PartDesign::Pad", "Pad010")
body.addObject(pad11)
pad11.Profile = sketch14
pad11.Length = 80

# Sketch on XY plane
sketch15 = doc.addObject("Sketcher::SketchObject", "Sketch014")
body.addObject(sketch15)
sketch15.AttachmentSupport = (doc.XY_Plane, [""])
sketch15.MapMode = "FlatFace"
sketch15.AttachmentOffset = App.Placement(V(0, 0, -40), App.Rotation())
add_polygon(sketch15, [(10, -397), (10, -427), (55, -427)])  # lines 0-2
sketch15.addConstraint([
    Sketcher.Constraint("Vertical", 0),
    Sketcher.Constraint("Horizontal", 1),
    Sketcher.Constraint("DistanceX", 1, 1, 1, 2, Q("45 mm")),
    Sketcher.Constraint("DistanceY", 0, 2, 0, 1, Q("30 mm")),
    Sketcher.Constraint("DistanceX", -1, 1, 0, 2, Q("10 mm")),
    Sketcher.Constraint("DistanceY", 0, 2, -1, 1, Q("427 mm")),
])
pocket4 = doc.addObject("PartDesign::Pocket", "Pocket003")
body.addObject(pocket4)
pocket4.Profile = sketch15
pocket4.Type = "ThroughAll"

# Sketch on YZ plane
sketch16 = doc.addObject("Sketcher::SketchObject", "Sketch015")
body.addObject(sketch16)
sketch16.AttachmentSupport = (doc.YZ_Plane, [""])
sketch16.MapMode = "FlatFace"
sketch16.AttachmentOffset = App.Placement(V(0, 0, 155), App.Rotation())
add_polygon(sketch16, [(-145, -40), (-155, -40), (-155, 30), (-145, 30)])  # lines 0-3
add_polygon(sketch16, [(-145, -410), (-155, -410), (-155, -340), (-145, -340)])  # lines 4-7
add_polygon(sketch16, [(-295, -410), (-305, -410), (-305, -340), (-295, -340)])  # lines 8-11
add_polygon(sketch16, [(-295, -40), (-305, -40), (-305, 30), (-295, 30)])  # lines 12-15
sketch16.addConstraint([
    Sketcher.Constraint("Horizontal", 0),
    Sketcher.Constraint("Vertical", 1),
    Sketcher.Constraint("Horizontal", 2),
    Sketcher.Constraint("Vertical", 3),
    Sketcher.Constraint("Horizontal", 4),
    Sketcher.Constraint("Vertical", 5),
    Sketcher.Constraint("Horizontal", 6),
    Sketcher.Constraint("Vertical", 7),
    Sketcher.Constraint("Horizontal", 8),
    Sketcher.Constraint("Vertical", 9),
    Sketcher.Constraint("Horizontal", 10),
    Sketcher.Constraint("Vertical", 11),
    Sketcher.Constraint("Horizontal", 12),
    Sketcher.Constraint("Vertical", 13),
    Sketcher.Constraint("Horizontal", 14),
    Sketcher.Constraint("Vertical", 15),
    Sketcher.Constraint("Horizontal", 7, 2, 8, 2),
    Sketcher.Constraint("Horizontal", 6, 2, 9, 2),
    Sketcher.Constraint("Horizontal", 3, 2, 12, 2),
    Sketcher.Constraint("Horizontal", 2, 2, 13, 2),
    Sketcher.Constraint("Vertical", 1, 2, 4, 2),
    Sketcher.Constraint("Vertical", 3, 2, 6, 2),
    Sketcher.Constraint("Vertical", 9, 2, 12, 2),
    Sketcher.Constraint("Vertical", 11, 2, 14, 2),
    Sketcher.Constraint("Equal", 6, 8),
    Sketcher.Constraint("Equal", 3, 5),
    Sketcher.Constraint("DistanceX", 0, 2, 0, 1, Q("10 mm")),
    Sketcher.Constraint("DistanceY", 1, 1, 1, 2, Q("70 mm")),
    Sketcher.Constraint("DistanceX", 0, 2, -1, 1, Q("155 mm")),
    Sketcher.Constraint("DistanceY", 0, 2, -1, 1, Q("40 mm")),
    Sketcher.Constraint("DistanceY", 4, 2, -1, 1, Q("410 mm")),
    Sketcher.Constraint("DistanceX", 8, 2, -1, 1, Q("305 mm")),
])
pad12 = doc.addObject("PartDesign::Pad", "Pad011")
body.addObject(pad12)
pad12.Profile = sketch16
pad12.Length = 145
pad12.Reversed = True

# Sketch on XZ plane
sketch17 = doc.addObject("Sketcher::SketchObject", "Sketch016")
body.addObject(sketch17)
sketch17.AttachmentSupport = (doc.XZ_Plane, [""])
sketch17.MapMode = "FlatFace"
sketch17.AttachmentOffset = App.Placement(V(0, 0, 305), App.Rotation())
add_polygon(sketch17, [(10, 30), (10, 0), (130, 30)])  # lines 0-2
add_polygon(sketch17, [(10, -380), (10, -410), (130, -410)])  # lines 3-5
sketch17.addConstraint([
    Sketcher.Constraint("Vertical", 0),
    Sketcher.Constraint("Horizontal", 2),
    Sketcher.Constraint("Vertical", 3),
    Sketcher.Constraint("Horizontal", 4),
    Sketcher.Constraint("PointOnObject", 0, 2, -1),
    Sketcher.Constraint("Vertical", 2, 2, 3, 2),
    Sketcher.Constraint("Vertical", 1, 2, 4, 2),
    Sketcher.Constraint("Equal", 0, 3),
    Sketcher.Constraint("DistanceX", 2, 2, 2, 1, Q("120 mm")),
    Sketcher.Constraint("DistanceY", 0, 2, 0, 1, Q("30 mm")),
    Sketcher.Constraint("DistanceX", -1, 1, 0, 2, Q("10 mm")),
    Sketcher.Constraint("DistanceY", 3, 2, -1, 1, Q("410 mm")),
])
pocket5 = doc.addObject("PartDesign::Pocket", "Pocket004")
body.addObject(pocket5)
pocket5.Profile = sketch17
pocket5.Type = "ThroughAll"

# Sketch on YZ plane
sketch18 = doc.addObject("Sketcher::SketchObject", "Sketch017")
body.addObject(sketch18)
sketch18.AttachmentSupport = (doc.YZ_Plane, [""])
sketch18.MapMode = "FlatFace"
sketch18.AttachmentOffset = App.Placement(V(0, 0, 10), App.Rotation())
add_polygon(sketch18, [(-145, -60), (-165, -60), (-165, -95), (-145, -95)])  # lines 0-3
add_polygon(sketch18, [(-145, -285), (-165, -285), (-165, -320), (-145, -320)])  # lines 4-7
sketch18.addConstraint([
    Sketcher.Constraint("Horizontal", 0),
    Sketcher.Constraint("Vertical", 1),
    Sketcher.Constraint("Horizontal", 2),
    Sketcher.Constraint("Vertical", 3),
    Sketcher.Constraint("Horizontal", 4),
    Sketcher.Constraint("Vertical", 5),
    Sketcher.Constraint("Horizontal", 6),
    Sketcher.Constraint("Vertical", 7),
    Sketcher.Constraint("Vertical", 1, 2, 4, 2),
    Sketcher.Constraint("Vertical", 3, 2, 6, 2),
    Sketcher.Constraint("Equal", 3, 5),
    Sketcher.Constraint("DistanceX", 0, 2, 0, 1, Q("20 mm")),
    Sketcher.Constraint("DistanceY", 1, 2, 1, 1, Q("35 mm")),
    Sketcher.Constraint("DistanceX", 0, 2, -1, 1, Q("165 mm")),
    Sketcher.Constraint("DistanceY", 0, 2, -1, 1, Q("60 mm")),
    Sketcher.Constraint("DistanceY", 4, 2, -1, 1, Q("285 mm")),
])
pad13 = doc.addObject("PartDesign::Pad", "Pad012")
body.addObject(pad13)
pad13.Profile = sketch18
pad13.Length = 167

# Sketch on XY plane
sketch19 = doc.addObject("Sketcher::SketchObject", "Sketch018")
body.addObject(sketch19)
sketch19.AttachmentSupport = (doc.XY_Plane, [""])
sketch19.MapMode = "FlatFace"
sketch19.AttachmentOffset = App.Placement(V(0, 0, -320), App.Rotation())
add_polygon(sketch19, [(67, -89), (67, -145), (77, -145), (77, -89)])  # lines 0-3
add_polygon(sketch19, [(122, -89), (122, -145), (132, -145), (132, -89)])  # lines 4-7
sketch19.addConstraint([
    Sketcher.Constraint("Vertical", 0),
    Sketcher.Constraint("Horizontal", 1),
    Sketcher.Constraint("Vertical", 2),
    Sketcher.Constraint("Horizontal", 3),
    Sketcher.Constraint("Vertical", 4),
    Sketcher.Constraint("Horizontal", 5),
    Sketcher.Constraint("Vertical", 6),
    Sketcher.Constraint("Horizontal", 7),
    Sketcher.Constraint("Horizontal", 1, 2, 4, 2),
    Sketcher.Constraint("Horizontal", 3, 2, 6, 2),
    Sketcher.Constraint("Equal", 3, 5),
    Sketcher.Constraint("DistanceX", 1, 1, 1, 2, Q("10 mm")),
    Sketcher.Constraint("DistanceY", 0, 2, 0, 1, Q("56 mm")),
    Sketcher.Constraint("DistanceX", -1, 1, 0, 2, Q("67 mm")),
    Sketcher.Constraint("DistanceY", 0, 2, -1, 1, Q("145 mm")),
    Sketcher.Constraint("DistanceX", -1, 1, 4, 2, Q("122 mm")),
])
pad14 = doc.addObject("PartDesign::Pad", "Pad013")
body.addObject(pad14)
pad14.Profile = sketch19
pad14.Length = 35

# Sketch on XY plane
sketch20 = doc.addObject("Sketcher::SketchObject", "Sketch019")
body.addObject(sketch20)
sketch20.AttachmentSupport = (doc.XY_Plane, [""])
sketch20.MapMode = "FlatFace"
sketch20.AttachmentOffset = App.Placement(V(0, 0, -60), App.Rotation())
add_polygon(sketch20, [(132, -89), (132, -145), (122, -145), (122, -89)])  # lines 0-3
add_polygon(sketch20, [(77, -89), (77, -145), (67, -145), (67, -89)])  # lines 4-7
sketch20.addConstraint([
    Sketcher.Constraint("Vertical", 0),
    Sketcher.Constraint("Horizontal", 1),
    Sketcher.Constraint("Vertical", 2),
    Sketcher.Constraint("Horizontal", 3),
    Sketcher.Constraint("Vertical", 4),
    Sketcher.Constraint("Horizontal", 5),
    Sketcher.Constraint("Vertical", 6),
    Sketcher.Constraint("Horizontal", 7),
    Sketcher.Constraint("Horizontal", 1, 2, 4, 2),
    Sketcher.Constraint("Horizontal", 3, 2, 6, 2),
    Sketcher.Constraint("Equal", 3, 5),
    Sketcher.Constraint("DistanceX", 1, 2, 1, 1, Q("10 mm")),
    Sketcher.Constraint("DistanceY", 0, 2, 0, 1, Q("56 mm")),
    Sketcher.Constraint("DistanceX", -1, 1, 0, 2, Q("132 mm")),
    Sketcher.Constraint("DistanceY", 0, 2, -1, 1, Q("145 mm")),
    Sketcher.Constraint("DistanceX", -1, 1, 4, 2, Q("77 mm")),
])
pad15 = doc.addObject("PartDesign::Pad", "Pad014")
body.addObject(pad15)
pad15.Profile = sketch20
pad15.Length = 35
pad15.Reversed = True

# Sketch on YZ plane
sketch21 = doc.addObject("Sketcher::SketchObject", "Sketch020")
body.addObject(sketch21)
sketch21.AttachmentSupport = (doc.YZ_Plane, [""])
sketch21.MapMode = "FlatFace"
sketch21.AttachmentOffset = App.Placement(V(0, 0, 132), App.Rotation())
add_polygon(sketch21, [(-89, -95), (-89, -80), (-110, -95)])  # lines 0-2
add_polygon(sketch21, [(-89, -300), (-89, -285), (-110, -285)])  # lines 3-5
sketch21.addConstraint([
    Sketcher.Constraint("Vertical", 0),
    Sketcher.Constraint("Horizontal", 2),
    Sketcher.Constraint("Vertical", 3),
    Sketcher.Constraint("Horizontal", 4),
    Sketcher.Constraint("Vertical", 2, 2, 3, 2),
    Sketcher.Constraint("Vertical", 1, 2, 4, 2),
    Sketcher.Constraint("Equal", 0, 3),
    Sketcher.Constraint("DistanceX", 2, 1, 2, 2, Q("21 mm")),
    Sketcher.Constraint("DistanceY", 0, 1, 0, 2, Q("15 mm")),
    Sketcher.Constraint("DistanceX", 0, 2, -1, 1, Q("89 mm")),
    Sketcher.Constraint("DistanceY", 0, 2, -1, 1, Q("80 mm")),
    Sketcher.Constraint("DistanceY", 3, 2, -1, 1, Q("285 mm")),
])
pocket6 = doc.addObject("PartDesign::Pocket", "Pocket005")
body.addObject(pocket6)
pocket6.Profile = sketch21
pocket6.Length = 65

# Sketch on XZ plane
sketch22 = doc.addObject("Sketcher::SketchObject", "Sketch021")
body.addObject(sketch22)
sketch22.AttachmentSupport = (doc.XZ_Plane, [""])
sketch22.MapMode = "FlatFace"
add_polygon(sketch22, [(10, -140), (10, -150), (60, -150), (60, -140)])  # lines 0-3
add_polygon(sketch22, [(10, -230), (10, -240), (60, -240), (60, -230)])  # lines 4-7
sketch22.addConstraint([
    Sketcher.Constraint("Vertical", 0),
    Sketcher.Constraint("Horizontal", 1),
    Sketcher.Constraint("Vertical", 2),
    Sketcher.Constraint("Horizontal", 3),
    Sketcher.Constraint("Vertical", 4),
    Sketcher.Constraint("Horizontal", 5),
    Sketcher.Constraint("Vertical", 6),
    Sketcher.Constraint("Horizontal", 7),
    Sketcher.Constraint("Vertical", 3, 2, 4, 2),
    Sketcher.Constraint("Vertical", 2, 2, 5, 2),
    Sketcher.Constraint("Equal", 2, 4),
    Sketcher.Constraint("DistanceX", 1, 1, 1, 2, Q("50 mm")),
    Sketcher.Constraint("DistanceY", 0, 2, 0, 1, Q("10 mm")),
    Sketcher.Constraint("DistanceX", -1, 1, 0, 2, Q("10 mm")),
    Sketcher.Constraint("DistanceY", 0, 2, -1, 1, Q("150 mm")),
    Sketcher.Constraint("DistanceY", 4, 2, -1, 1, Q("240 mm")),
])
pad16 = doc.addObject("PartDesign::Pad", "Pad015")
body.addObject(pad16)
pad16.Profile = sketch22
pad16.Length = 50

# Sketch on XY plane
sketch23 = doc.addObject("Sketcher::SketchObject", "Sketch022")
body.addObject(sketch23)
sketch23.AttachmentSupport = (doc.XY_Plane, [""])
sketch23.MapMode = "FlatFace"
sketch23.AttachmentOffset = App.Placement(V(0, 0, -240), App.Rotation())
add_polygon(sketch23, [(60, -20), (60, -50), (30, -50)])  # lines 0-2
sketch23.addConstraint([
    Sketcher.Constraint("Vertical", 0),
    Sketcher.Constraint("Horizontal", 1),
    Sketcher.Constraint("Equal", 1, 0),
    Sketcher.Constraint("DistanceX", 1, 2, 1, 1, Q("30 mm")),
    Sketcher.Constraint("DistanceX", -1, 1, 0, 2, Q("60 mm")),
    Sketcher.Constraint("DistanceY", 0, 2, -1, 1, Q("50 mm")),
])
pocket7 = doc.addObject("PartDesign::Pocket", "Pocket006")
body.addObject(pocket7)
pocket7.Profile = sketch23
pocket7.Length = 100
pocket7.Reversed = True

# Sketch on XZ plane
sketch24 = doc.addObject("Sketcher::SketchObject", "Sketch023")
body.addObject(sketch24)
sketch24.AttachmentSupport = (doc.XZ_Plane, [""])
sketch24.MapMode = "FlatFace"
add_polygon(sketch24, [(112.5, -340), (112.5, -380), (122.5, -380), (122.5, -340)])  # lines 0-3
add_polygon(sketch24, [(57.5, -340), (57.5, -380), (67.5, -380), (67.5, -340)])  # lines 4-7
add_polygon(sketch24, [(112.5, 0), (112.5, -40), (122.5, -40), (122.5, 0)])  # lines 8-11
add_polygon(sketch24, [(57.5, 0), (57.5, -40), (67.5, -40), (67.5, 0)])  # lines 12-15
sketch24.addConstraint([
    Sketcher.Constraint("Vertical", 0),
    Sketcher.Constraint("Horizontal", 1),
    Sketcher.Constraint("Vertical", 2),
    Sketcher.Constraint("Horizontal", 3),
    Sketcher.Constraint("Vertical", 4),
    Sketcher.Constraint("Horizontal", 5),
    Sketcher.Constraint("Vertical", 6),
    Sketcher.Constraint("Horizontal", 7),
    Sketcher.Constraint("Vertical", 8),
    Sketcher.Constraint("Horizontal", 9),
    Sketcher.Constraint("Vertical", 10),
    Sketcher.Constraint("Horizontal", 11),
    Sketcher.Constraint("Vertical", 12),
    Sketcher.Constraint("Horizontal", 13),
    Sketcher.Constraint("Vertical", 14),
    Sketcher.Constraint("Horizontal", 15),
    Sketcher.Constraint("PointOnObject", 10, 2, -1),
    Sketcher.Constraint("PointOnObject", 14, 2, -1),
    Sketcher.Constraint("Horizontal", 1, 2, 4, 2),
    Sketcher.Constraint("Horizontal", 3, 2, 6, 2),
    Sketcher.Constraint("Horizontal", 9, 2, 12, 2),
    Sketcher.Constraint("Vertical", 3, 2, 8, 2),
    Sketcher.Constraint("Vertical", 2, 2, 9, 2),
    Sketcher.Constraint("Vertical", 7, 2, 12, 2),
    Sketcher.Constraint("Vertical", 6, 2, 13, 2),
    Sketcher.Constraint("Equal", 3, 5),
    Sketcher.Constraint("Equal", 6, 8),
    Sketcher.Constraint("DistanceX", 1, 1, 1, 2, Q("10 mm")),
    Sketcher.Constraint("DistanceY", 0, 2, 0, 1, Q("40 mm")),
    Sketcher.Constraint("DistanceY", 0, 2, -1, 1, Q("380 mm")),
    Sketcher.Constraint("DistanceX", 4, 2, 0, 2, Q("55 mm")),
    Sketcher.Constraint("DistanceX", -1, 1, 0, 2, Q("112.5 mm")),
])
pad17 = doc.addObject("PartDesign::Pad", "Pad016")
body.addObject(pad17)
pad17.Profile = sketch24
pad17.Length = 60

# Sketch on YZ plane
sketch25 = doc.addObject("Sketcher::SketchObject", "Sketch024")
body.addObject(sketch25)
sketch25.AttachmentSupport = (doc.YZ_Plane, [""])
sketch25.MapMode = "FlatFace"
sketch25.AttachmentOffset = App.Placement(V(0, 0, 57.5), App.Rotation())
add_polygon(sketch25, [(-60, -20), (-60, 0), (-30, 0)])  # lines 0-2
add_polygon(sketch25, [(-60, -380), (-60, -360), (-30, -380)])  # lines 3-5
sketch25.addConstraint([
    Sketcher.Constraint("Vertical", 0),
    Sketcher.Constraint("Horizontal", 1),
    Sketcher.Constraint("Vertical", 3),
    Sketcher.Constraint("Horizontal", 5),
    Sketcher.Constraint("PointOnObject", 0, 2, -1),
    Sketcher.Constraint("Vertical", 2, 2, 3, 2),
    Sketcher.Constraint("Vertical", 1, 2, 4, 2),
    Sketcher.Constraint("Equal", 0, 3),
    Sketcher.Constraint("DistanceX", 1, 1, 1, 2, Q("30 mm")),
    Sketcher.Constraint("DistanceY", 0, 1, 0, 2, Q("20 mm")),
    Sketcher.Constraint("DistanceX", 0, 2, -1, 1, Q("60 mm")),
    Sketcher.Constraint("DistanceY", 3, 2, -1, 1, Q("360 mm")),
])
pocket8 = doc.addObject("PartDesign::Pocket", "Pocket007")
body.addObject(pocket8)
pocket8.Profile = sketch25
pocket8.Length = 65
pocket8.Reversed = True

# Sketch on YZ plane
sketch26 = doc.addObject("Sketcher::SketchObject", "Sketch025")
body.addObject(sketch26)
sketch26.AttachmentSupport = (doc.YZ_Plane, [""])
sketch26.MapMode = "FlatFace"
sketch26.AttachmentOffset = App.Placement(V(0, 0, 347), App.Rotation())
sketch26.addGeometry([
    Part.LineSegment(V(-465, -226.055513, 0), V(-465, -153.944487, 0)),  # 0
    Part.ArcOfCircle(Part.Circle(V(-405, -190, 0), V(0, 0, 1), 70), math.radians(-148.997281), math.radians(148.997281)),  # 1
    Part.Circle(V(-405, -190, 0), V(0, 0, 1), 25),  # 2
    Part.Circle(V(-372, -220, 0), V(0, 0, 1), 6),  # 3
    Part.Circle(V(-372, -160, 0), V(0, 0, 1), 6),  # 4
], False)
sketch26.addConstraint([
    Sketcher.Constraint("Coincident", 0, 1, 1, 1),
    Sketcher.Constraint("Coincident", 1, 2, 0, 2),
    Sketcher.Constraint("Vertical", 0),
    Sketcher.Constraint("Coincident", 2, 3, 1, 3),
    Sketcher.Constraint("Equal", 3, 4),
    Sketcher.Constraint("Vertical", 3, 3, 4, 3),
    Sketcher.Constraint("Diameter", 2, Q("50 mm")),
    Sketcher.Constraint("Diameter", 3, Q("12 mm")),
    Sketcher.Constraint("Radius", 1, Q("70 mm")),
    Sketcher.Constraint("DistanceX", 1, 3, -1, 1, Q("405 mm")),
    Sketcher.Constraint("DistanceY", 1, 3, -1, 1, Q("190 mm")),
    Sketcher.Constraint("DistanceX", 3, 3, -1, 1, Q("372 mm")),
    Sketcher.Constraint("DistanceY", 3, 3, -1, 1, Q("220 mm")),
    Sketcher.Constraint("DistanceY", 4, 3, -1, 1, Q("160 mm")),
    Sketcher.Constraint("DistanceX", 0, 1, -1, 1, Q("465 mm")),
])
pad18 = doc.addObject("PartDesign::Pad", "Pad017")
body.addObject(pad18)
pad18.Profile = sketch26
pad18.Length = 10
doc.recompute()

linearpattern2 = doc.addObject("PartDesign::LinearPattern", "LinearPattern001")
body.addObject(linearpattern2)
linearpattern2.Originals = [pad18]
linearpattern2.Direction = (doc.X_Axis, [""])
linearpattern2.Mode = "offset"
linearpattern2.Offset = 180
linearpattern2.Occurrences = 2
linearpattern2.Reversed = True
body.Tip = linearpattern2

doc.recompute()
